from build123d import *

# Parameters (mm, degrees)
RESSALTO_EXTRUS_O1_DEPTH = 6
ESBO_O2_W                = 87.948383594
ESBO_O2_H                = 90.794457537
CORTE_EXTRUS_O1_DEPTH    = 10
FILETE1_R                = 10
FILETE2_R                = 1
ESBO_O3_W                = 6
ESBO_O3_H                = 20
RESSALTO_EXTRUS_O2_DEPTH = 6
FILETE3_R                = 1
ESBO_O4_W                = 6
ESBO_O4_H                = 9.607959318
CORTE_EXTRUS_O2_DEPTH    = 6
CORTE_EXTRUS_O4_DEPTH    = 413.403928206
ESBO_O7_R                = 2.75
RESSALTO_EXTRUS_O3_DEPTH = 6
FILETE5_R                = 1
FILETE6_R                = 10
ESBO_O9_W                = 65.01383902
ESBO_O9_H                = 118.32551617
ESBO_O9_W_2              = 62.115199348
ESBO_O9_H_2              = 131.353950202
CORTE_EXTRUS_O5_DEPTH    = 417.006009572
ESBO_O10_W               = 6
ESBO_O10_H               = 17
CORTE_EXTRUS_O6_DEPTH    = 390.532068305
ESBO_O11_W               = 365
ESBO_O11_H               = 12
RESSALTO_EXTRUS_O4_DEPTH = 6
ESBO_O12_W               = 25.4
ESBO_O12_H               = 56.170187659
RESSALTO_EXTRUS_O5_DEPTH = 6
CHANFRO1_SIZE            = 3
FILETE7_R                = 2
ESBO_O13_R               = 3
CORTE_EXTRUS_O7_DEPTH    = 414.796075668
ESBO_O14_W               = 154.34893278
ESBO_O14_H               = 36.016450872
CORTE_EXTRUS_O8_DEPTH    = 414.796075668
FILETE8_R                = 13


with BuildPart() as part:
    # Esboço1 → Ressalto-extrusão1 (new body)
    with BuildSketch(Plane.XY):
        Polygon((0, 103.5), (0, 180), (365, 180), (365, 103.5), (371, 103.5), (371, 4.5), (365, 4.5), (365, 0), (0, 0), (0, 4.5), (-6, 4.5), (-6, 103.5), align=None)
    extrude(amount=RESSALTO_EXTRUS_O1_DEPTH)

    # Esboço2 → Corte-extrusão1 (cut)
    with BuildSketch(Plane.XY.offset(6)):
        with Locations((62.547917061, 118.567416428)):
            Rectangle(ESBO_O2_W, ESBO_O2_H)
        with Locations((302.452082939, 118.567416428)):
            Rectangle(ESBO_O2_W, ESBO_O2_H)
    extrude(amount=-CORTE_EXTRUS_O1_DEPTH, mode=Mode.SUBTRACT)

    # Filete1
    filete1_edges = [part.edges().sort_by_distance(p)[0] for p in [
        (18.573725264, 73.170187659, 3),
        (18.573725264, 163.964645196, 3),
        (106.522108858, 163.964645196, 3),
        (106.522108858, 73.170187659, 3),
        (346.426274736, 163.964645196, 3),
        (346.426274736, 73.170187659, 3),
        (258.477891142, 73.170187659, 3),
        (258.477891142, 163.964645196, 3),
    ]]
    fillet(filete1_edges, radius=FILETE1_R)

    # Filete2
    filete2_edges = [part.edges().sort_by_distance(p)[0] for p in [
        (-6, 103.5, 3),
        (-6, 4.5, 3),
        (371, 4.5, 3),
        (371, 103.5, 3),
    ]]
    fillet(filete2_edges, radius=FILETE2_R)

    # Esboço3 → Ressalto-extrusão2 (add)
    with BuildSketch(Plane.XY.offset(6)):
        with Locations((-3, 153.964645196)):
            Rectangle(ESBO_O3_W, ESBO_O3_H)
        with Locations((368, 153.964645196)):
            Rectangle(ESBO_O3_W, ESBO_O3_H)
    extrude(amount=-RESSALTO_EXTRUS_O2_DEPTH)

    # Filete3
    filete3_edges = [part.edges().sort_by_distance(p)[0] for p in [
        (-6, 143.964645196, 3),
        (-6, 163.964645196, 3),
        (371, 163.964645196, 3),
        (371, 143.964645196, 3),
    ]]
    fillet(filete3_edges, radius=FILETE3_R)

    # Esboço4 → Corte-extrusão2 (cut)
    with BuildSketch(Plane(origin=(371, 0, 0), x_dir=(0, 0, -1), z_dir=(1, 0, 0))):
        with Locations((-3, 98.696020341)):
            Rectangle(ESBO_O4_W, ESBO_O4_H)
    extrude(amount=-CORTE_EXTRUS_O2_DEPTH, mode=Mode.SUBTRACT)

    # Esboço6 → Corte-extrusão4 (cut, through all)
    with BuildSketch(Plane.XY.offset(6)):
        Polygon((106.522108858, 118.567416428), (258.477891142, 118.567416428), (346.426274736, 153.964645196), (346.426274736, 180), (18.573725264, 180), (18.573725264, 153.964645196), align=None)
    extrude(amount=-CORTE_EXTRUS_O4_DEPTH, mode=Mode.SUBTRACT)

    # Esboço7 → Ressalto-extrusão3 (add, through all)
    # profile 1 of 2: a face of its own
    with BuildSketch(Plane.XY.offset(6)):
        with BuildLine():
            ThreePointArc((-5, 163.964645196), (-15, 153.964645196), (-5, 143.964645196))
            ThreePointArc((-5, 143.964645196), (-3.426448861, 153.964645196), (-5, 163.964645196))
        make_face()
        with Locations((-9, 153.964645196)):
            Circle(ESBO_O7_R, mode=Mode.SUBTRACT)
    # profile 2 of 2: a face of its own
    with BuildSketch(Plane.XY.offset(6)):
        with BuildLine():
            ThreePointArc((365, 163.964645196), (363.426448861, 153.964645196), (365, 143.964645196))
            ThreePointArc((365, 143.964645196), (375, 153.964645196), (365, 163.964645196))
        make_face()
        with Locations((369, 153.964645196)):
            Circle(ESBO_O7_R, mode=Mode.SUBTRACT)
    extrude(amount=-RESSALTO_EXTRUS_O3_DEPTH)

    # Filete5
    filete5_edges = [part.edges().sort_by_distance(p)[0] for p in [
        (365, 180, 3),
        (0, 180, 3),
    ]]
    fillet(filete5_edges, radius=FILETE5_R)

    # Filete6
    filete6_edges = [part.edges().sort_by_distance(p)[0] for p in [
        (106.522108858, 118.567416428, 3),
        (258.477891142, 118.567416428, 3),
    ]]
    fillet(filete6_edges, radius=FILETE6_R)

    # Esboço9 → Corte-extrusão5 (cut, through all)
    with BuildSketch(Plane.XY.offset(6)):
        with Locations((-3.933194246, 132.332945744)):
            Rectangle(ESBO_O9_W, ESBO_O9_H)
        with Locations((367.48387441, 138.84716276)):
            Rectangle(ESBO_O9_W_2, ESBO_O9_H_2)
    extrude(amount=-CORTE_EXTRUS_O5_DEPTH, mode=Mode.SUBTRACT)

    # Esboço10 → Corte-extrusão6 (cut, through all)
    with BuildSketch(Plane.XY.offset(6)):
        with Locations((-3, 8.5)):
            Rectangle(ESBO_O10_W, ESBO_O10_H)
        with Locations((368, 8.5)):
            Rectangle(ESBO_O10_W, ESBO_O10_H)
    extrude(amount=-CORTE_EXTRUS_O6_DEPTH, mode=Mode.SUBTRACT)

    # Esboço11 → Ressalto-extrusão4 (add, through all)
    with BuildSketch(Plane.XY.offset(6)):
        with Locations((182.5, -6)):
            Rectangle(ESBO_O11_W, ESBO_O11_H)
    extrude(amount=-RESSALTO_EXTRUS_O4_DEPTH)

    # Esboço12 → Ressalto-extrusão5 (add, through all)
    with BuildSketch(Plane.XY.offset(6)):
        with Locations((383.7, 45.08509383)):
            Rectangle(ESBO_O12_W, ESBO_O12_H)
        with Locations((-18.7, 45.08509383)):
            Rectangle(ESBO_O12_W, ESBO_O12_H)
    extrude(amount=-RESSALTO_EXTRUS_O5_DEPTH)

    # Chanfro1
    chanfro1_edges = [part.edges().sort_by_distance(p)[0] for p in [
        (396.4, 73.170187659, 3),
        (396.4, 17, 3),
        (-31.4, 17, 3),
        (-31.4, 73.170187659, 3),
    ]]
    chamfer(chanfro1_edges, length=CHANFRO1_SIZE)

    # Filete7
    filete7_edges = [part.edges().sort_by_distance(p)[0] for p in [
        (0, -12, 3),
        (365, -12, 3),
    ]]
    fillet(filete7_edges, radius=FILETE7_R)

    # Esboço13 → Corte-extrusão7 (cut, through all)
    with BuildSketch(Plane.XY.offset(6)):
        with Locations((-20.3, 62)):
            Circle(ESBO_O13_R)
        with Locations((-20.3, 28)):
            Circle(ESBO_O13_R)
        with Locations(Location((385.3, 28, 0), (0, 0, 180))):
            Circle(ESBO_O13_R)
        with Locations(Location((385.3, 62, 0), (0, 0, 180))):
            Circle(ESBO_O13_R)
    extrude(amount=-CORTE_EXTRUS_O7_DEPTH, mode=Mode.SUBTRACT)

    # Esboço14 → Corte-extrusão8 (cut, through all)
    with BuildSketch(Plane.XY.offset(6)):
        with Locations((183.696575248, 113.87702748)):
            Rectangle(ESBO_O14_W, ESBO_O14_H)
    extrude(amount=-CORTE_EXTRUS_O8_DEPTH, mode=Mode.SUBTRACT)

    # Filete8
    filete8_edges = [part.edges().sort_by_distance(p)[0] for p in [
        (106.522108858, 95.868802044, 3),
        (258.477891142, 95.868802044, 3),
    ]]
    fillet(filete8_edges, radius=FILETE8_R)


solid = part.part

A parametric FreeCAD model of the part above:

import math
import FreeCAD as App
import Part
import Sketcher


def edges_at(feature, points):
    """Names of the edges that pass closest to the given points."""
    edges = feature.Shape.Edges
    near = lambda p: min(range(len(edges)), key=lambda i: edges[i].distToShape(Part.Vertex(*p))[0])
    return sorted({f"Edge{near(p) + 1}" for p in points})

doc = App.newDocument("Part")
body = doc.addObject("PartDesign::Body", "Body")

sketch1 = body.newObject("Sketcher::SketchObject", "Sketch")
sketch1.AttachmentSupport = (doc.getObject("XY_Plane"), [""])
sketch1.MapMode = "FlatFace"
sketch1.addGeometry(Part.LineSegment(App.Vector(0, 180, 0), App.Vector(0, 103.5, 0)), False)
sketch1.addGeometry(Part.LineSegment(App.Vector(0, 103.5, 0), App.Vector(-6, 103.5, 0)), False)
sketch1.addGeometry(Part.LineSegment(App.Vector(-6, 103.5, 0), App.Vector(-6, 4.5, 0)), False)
sketch1.addGeometry(Part.LineSegment(App.Vector(-6, 4.5, 0), App.Vector(0, 4.5, 0)), False)
sketch1.addGeometry(Part.LineSegment(App.Vector(0, 4.5, 0), App.Vector(0, 0, 0)), False)
sketch1.addGeometry(Part.LineSegment(App.Vector(0, 0, 0), App.Vector(365, 0, 0)), False)
sketch1.addGeometry(Part.LineSegment(App.Vector(365, 0, 0), App.Vector(365, 4.5, 0)), False)
sketch1.addGeometry(Part.LineSegment(App.Vector(365, 4.5, 0), App.Vector(371, 4.5, 0)), False)
sketch1.addGeometry(Part.LineSegment(App.Vector(371, 4.5, 0), App.Vector(371, 103.5, 0)), False)
sketch1.addGeometry(Part.LineSegment(App.Vector(371, 103.5, 0), App.Vector(365, 103.5, 0)), False)
sketch1.addGeometry(Part.LineSegment(App.Vector(365, 103.5, 0), App.Vector(365, 180, 0)), False)
sketch1.addGeometry(Part.LineSegment(App.Vector(365, 180, 0), App.Vector(0, 180, 0)), False)
sketch1.addConstraint(Sketcher.Constraint("Coincident", 0, 2, 1, 1))
sketch1.addConstraint(Sketcher.Constraint("Coincident", 1, 2, 2, 1))
sketch1.addConstraint(Sketcher.Constraint("Coincident", 2, 2, 3, 1))
sketch1.addConstraint(Sketcher.Constraint("Coincident", 3, 2, 4, 1))
sketch1.addConstraint(Sketcher.Constraint("Coincident", 4, 2, 5, 1))
sketch1.addConstraint(Sketcher.Constraint("Coincident", 5, 2, 6, 1))
sketch1.addConstraint(Sketcher.Constraint("Coincident", 6, 2, 7, 1))
sketch1.addConstraint(Sketcher.Constraint("Coincident", 7, 2, 8, 1))
sketch1.addConstraint(Sketcher.Constraint("Coincident", 8, 2, 9, 1))
sketch1.addConstraint(Sketcher.Constraint("Coincident", 9, 2, 10, 1))
sketch1.addConstraint(Sketcher.Constraint("Coincident", 10, 2, 11, 1))
sketch1.addConstraint(Sketcher.Constraint("Coincident", 11, 2, 0, 1))
sketch1.addConstraint(Sketcher.Constraint("Vertical", 0))
sketch1.addConstraint(Sketcher.Constraint("Horizontal", 1))
sketch1.addConstraint(Sketcher.Constraint("Vertical", 2))
sketch1.addConstraint(Sketcher.Constraint("Horizontal", 3))
sketch1.addConstraint(Sketcher.Constraint("Vertical", 4))
sketch1.addConstraint(Sketcher.Constraint("Horizontal", 5))
sketch1.addConstraint(Sketcher.Constraint("Vertical", 6))
sketch1.addConstraint(Sketcher.Constraint("Horizontal", 7))
sketch1.addConstraint(Sketcher.Constraint("Vertical", 8))
sketch1.addConstraint(Sketcher.Constraint("Horizontal", 9))
sketch1.addConstraint(Sketcher.Constraint("Vertical", 10))
sketch1.addConstraint(Sketcher.Constraint("Horizontal", 11))
sketch1.addConstraint(Sketcher.Constraint("Coincident", 4, 2, -1, 1))
sketch1.addConstraint(Sketcher.Constraint("PointOnObject", 0, 2, -2))
sketch1.addConstraint(Sketcher.Constraint("Horizontal", 3, 2, 6, 2))
sketch1.addConstraint(Sketcher.Constraint("Horizontal", 1, 2, 8, 2))
sketch1.addConstraint(Sketcher.Constraint("Vertical", 6, 2, 9, 2))
sketch1.addConstraint(Sketcher.Constraint("Equal", 3, 7))
sketch1.addConstraint(Sketcher.Constraint("DistanceX", 1, 2, 1, 1, 6.0))
sketch1.addConstraint(Sketcher.Constraint("DistanceX", 5, 1, 5, 2, 365.0))
sketch1.addConstraint(Sketcher.Constraint("DistanceY", 2, 2, 2, 1, 99.0))
sketch1.addConstraint(Sketcher.Constraint("DistanceY", 0, 2, 0, 1, 76.5))
sketch1.addConstraint(Sketcher.Constraint("DistanceY", 4, 2, 4, 1, 4.5))
pad1 = body.newObject("PartDesign::Pad", "Pad")
pad1.Profile = sketch1
pad1.Length = 6

sketch2 = body.newObject("Sketcher::SketchObject", "Sketch001")
sketch2.AttachmentSupport = (doc.getObject("XY_Plane"), [""])
sketch2.MapMode = "FlatFace"
sketch2.AttachmentOffset = App.Placement(App.Vector(0, 0, 6), App.Rotation())
sketch2.addGeometry(Part.LineSegment(App.Vector(19, 164, 0), App.Vector(19, 73, 0)), False)
sketch2.addGeometry(Part.LineSegment(App.Vector(19, 73, 0), App.Vector(107, 73, 0)), False)
sketch2.addGeometry(Part.LineSegment(App.Vector(107, 73, 0), App.Vector(107, 164, 0)), False)
sketch2.addGeometry(Part.LineSegment(App.Vector(107, 164, 0), App.Vector(19, 164, 0)), False)
sketch2.addGeometry(Part.LineSegment(App.Vector(258, 164, 0), App.Vector(258, 73, 0)), False)
sketch2.addGeometry(Part.LineSegment(App.Vector(258, 73, 0), App.Vector(346, 73, 0)), False)
sketch2.addGeometry(Part.LineSegment(App.Vector(346, 73, 0), App.Vector(346, 164, 0)), False)
sketch2.addGeometry(Part.LineSegment(App.Vector(346, 164, 0), App.Vector(258, 164, 0)), False)
sketch2.addConstraint(Sketcher.Constraint("Coincident", 0, 2, 1, 1))
sketch2.addConstraint(Sketcher.Constraint("Coincident", 1, 2, 2, 1))
sketch2.addConstraint(Sketcher.Constraint("Coincident", 2, 2, 3, 1))
sketch2.addConstraint(Sketcher.Constraint("Coincident", 3, 2, 0, 1))
sketch2.addConstraint(Sketcher.Constraint("Coincident", 4, 2, 5, 1))
sketch2.addConstraint(Sketcher.Constraint("Coincident", 5, 2, 6, 1))
sketch2.addConstraint(Sketcher.Constraint("Coincident", 6, 2, 7, 1))
sketch2.addConstraint(Sketcher.Constraint("Coincident", 7, 2, 4, 1))
sketch2.addConstraint(Sketcher.Constraint("Vertical", 0))
sketch2.addConstraint(Sketcher.Constraint("Horizontal", 1))
sketch2.addConstraint(Sketcher.Constraint("Vertical", 2))
sketch2.addConstraint(Sketcher.Constraint("Horizontal", 3))
sketch2.addConstraint(Sketcher.Constraint("Vertical", 4))
sketch2.addConstraint(Sketcher.Constraint("Horizontal", 5))
sketch2.addConstraint(Sketcher.Constraint("Vertical", 6))
sketch2.addConstraint(Sketcher.Constraint("Horizontal", 7))
sketch2.addConstraint(Sketcher.Constraint("Horizontal", 1, 2, 4, 2))
sketch2.addConstraint(Sketcher.Constraint("Horizontal", 3, 2, 6, 2))
sketch2.addConstraint(Sketcher.Constraint("Equal", 3, 5))
sketch2.addConstraint(Sketcher.Constraint("DistanceX", 1, 1, 1, 2, 87.948384))
sketch2.addConstraint(Sketcher.Constraint("DistanceY", 0, 2, 0, 1, 90.794458))
sketch2.addConstraint(Sketcher.Constraint("DistanceX", -1, 1, 1, 2, 106.522109))
sketch2.addConstraint(Sketcher.Constraint("DistanceX", -1, 1, 4, 2, 258.477891))
sketch2.addConstraint(Sketcher.Constraint("DistanceY", -1, 1, 0, 2, 73.170188))
pocket1 = body.newObject("PartDesign::Pocket", "Pocket")
pocket1.Profile = sketch2
pocket1.Length = 10
doc.recompute()

fillet = body.newObject("PartDesign::Fillet", "Fillet")
fillet.Base = (pocket1, edges_at(pocket1, [
    (18.574, 73.17, 3),
    (18.574, 163.965, 3),
    (106.522, 163.965, 3),
    (106.522, 73.17, 3),
    (346.426, 163.965, 3),
    (346.426, 73.17, 3),
    (258.478, 73.17, 3),
    (258.478, 163.965, 3),
]))
fillet.Radius = 10
doc.recompute()

fillet2 = body.newObject("PartDesign::Fillet", "Fillet001")
fillet2.Base = (fillet, edges_at(fillet, [
    (-6, 103.5, 3),
    (-6, 4.5, 3),
    (371, 4.5, 3),
    (371, 103.5, 3),
]))
fillet2.Radius = 1

sketch3 = body.newObject("Sketcher::SketchObject", "Sketch002")
sketch3.AttachmentSupport = (doc.getObject("XY_Plane"), [""])
sketch3.MapMode = "FlatFace"
sketch3.AttachmentOffset = App.Placement(App.Vector(0, 0, 6), App.Rotation())
sketch3.addGeometry(Part.LineSegment(App.Vector(-6, 164, 0), App.Vector(-6, 144, 0)), False)
sketch3.addGeometry(Part.LineSegment(App.Vector(-6, 144, 0), App.Vector(0, 144, 0)), False)
sketch3.addGeometry(Part.LineSegment(App.Vector(0, 144, 0), App.Vector(0, 164, 0)), False)
sketch3.addGeometry(Part.LineSegment(App.Vector(0, 164, 0), App.Vector(-6, 164, 0)), False)
sketch3.addGeometry(Part.LineSegment(App.Vector(365, 164, 0), App.Vector(365, 144, 0)), False)
sketch3.addGeometry(Part.LineSegment(App.Vector(365, 144, 0), App.Vector(371, 144, 0)), False)
sketch3.addGeometry(Part.LineSegment(App.Vector(371, 144, 0), App.Vector(371, 164, 0)), False)
sketch3.addGeometry(Part.LineSegment(App.Vector(371, 164, 0), App.Vector(365, 164, 0)), False)
sketch3.addConstraint(Sketcher.Constraint("Coincident", 0, 2, 1, 1))
sketch3.addConstraint(Sketcher.Constraint("Coincident", 1, 2, 2, 1))
sketch3.addConstraint(Sketcher.Constraint("Coincident", 2, 2, 3, 1))
sketch3.addConstraint(Sketcher.Constraint("Coincident", 3, 2, 0, 1))
sketch3.addConstraint(Sketcher.Constraint("Coincident", 4, 2, 5, 1))
sketch3.addConstraint(Sketcher.Constraint("Coincident", 5, 2, 6, 1))
sketch3.addConstraint(Sketcher.Constraint("Coincident", 6, 2, 7, 1))
sketch3.addConstraint(Sketcher.Constraint("Coincident", 7, 2, 4, 1))
sketch3.addConstraint(Sketcher.Constraint("Vertical", 0))
sketch3.addConstraint(Sketcher.Constraint("Horizontal", 1))
sketch3.addConstraint(Sketcher.Constraint("Vertical", 2))
sketch3.addConstraint(Sketcher.Constraint("Horizontal", 3))
sketch3.addConstraint(Sketcher.Constraint("Vertical", 4))
sketch3.addConstraint(Sketcher.Constraint("Horizontal", 5))
sketch3.addConstraint(Sketcher.Constraint("Vertical", 6))
sketch3.addConstraint(Sketcher.Constraint("Horizontal", 7))
sketch3.addConstraint(Sketcher.Constraint("PointOnObject", 1, 2, -2))
sketch3.addConstraint(Sketcher.Constraint("Horizontal", 1, 2, 4, 2))
sketch3.addConstraint(Sketcher.Constraint("Horizontal", 3, 2, 6, 2))
sketch3.addConstraint(Sketcher.Constraint("Equal", 3, 5))
sketch3.addConstraint(Sketcher.Constraint("DistanceX", 1, 1, 1, 2, 6.0))
sketch3.addConstraint(Sketcher.Constraint("DistanceY", 0, 2, 0, 1, 20.0))
sketch3.addConstraint(Sketcher.Constraint("DistanceX", -1, 1, 4, 2, 365.0))
sketch3.addConstraint(Sketcher.Constraint("DistanceY", -1, 1, 0, 2, 143.964645))
pad2 = body.newObject("PartDesign::Pad", "Pad001")
pad2.Profile = sketch3
pad2.Length = 6
pad2.Reversed = True
doc.recompute()

fillet3 = body.newObject("PartDesign::Fillet", "Fillet002")
fillet3.Base = (pad2, edges_at(pad2, [
    (-6, 143.965, 3),
    (-6, 163.965, 3),
    (371, 163.965, 3),
    (371, 143.965, 3),
]))
fillet3.Radius = 1

sketch4 = body.newObject("Sketcher::SketchObject", "Sketch003")
sketch4.AttachmentSupport = (doc.getObject("YZ_Plane"), [""])
sketch4.MapMode = "FlatFace"
sketch4.AttachmentOffset = App.Placement(App.Vector(0, 0, 371), App.Rotation())
sketch4.addGeometry(Part.LineSegment(App.Vector(104, 6, 0), App.Vector(94, 6, 0)), False)
sketch4.addGeometry(Part.LineSegment(App.Vector(94, 6, 0), App.Vector(94, 0, 0)), False)
sketch4.addGeometry(Part.LineSegment(App.Vector(94, 0, 0), App.Vector(104, 0, 0)), False)
sketch4.addGeometry(Part.LineSegment(App.Vector(104, 0, 0), App.Vector(104, 6, 0)), False)
sketch4.addConstraint(Sketcher.Constraint("Coincident", 0, 2, 1, 1))
sketch4.addConstraint(Sketcher.Constraint("Coincident", 1, 2, 2, 1))
sketch4.addConstraint(Sketcher.Constraint("Coincident", 2, 2, 3, 1))
sketch4.addConstraint(Sketcher.Constraint("Coincident", 3, 2, 0, 1))
sketch4.addConstraint(Sketcher.Constraint("Horizontal", 0))
sketch4.addConstraint(Sketcher.Constraint("Vertical", 1))
sketch4.addConstraint(Sketcher.Constraint("Horizontal", 2))
sketch4.addConstraint(Sketcher.Constraint("Vertical", 3))
sketch4.addConstraint(Sketcher.Constraint("PointOnObject", 1, 2, -1))
sketch4.addConstraint(Sketcher.Constraint("DistanceY", 1, 2, 1, 1, 6.0))
sketch4.addConstraint(Sketcher.Constraint("DistanceX", -1, 1, 2, 2, 103.5))
sketch4.addConstraint(Sketcher.Constraint("DistanceX", 0, 2, 0, 1, 9.607959))
pocket2 = body.newObject("PartDesign::Pocket", "Pocket001")
pocket2.Profile = sketch4
pocket2.Length = 6

sketch5 = body.newObject("Sketcher::SketchObject", "Sketch004")
sketch5.AttachmentSupport = (doc.getObject("XY_Plane"), [""])
sketch5.MapMode = "FlatFace"
sketch5.AttachmentOffset = App.Placement(App.Vector(0, 0, 6), App.Rotation())
sketch5.addGeometry(Part.LineSegment(App.Vector(107, 119, 0), App.Vector(258, 119, 0)), False)
sketch5.addGeometry(Part.LineSegment(App.Vector(258, 119, 0), App.Vector(346, 154, 0)), False)
sketch5.addGeometry(Part.LineSegment(App.Vector(346, 154, 0), App.Vector(346, 180, 0)), False)
sketch5.addGeometry(Part.LineSegment(App.Vector(346, 180, 0), App.Vector(19, 180, 0)), False)
sketch5.addGeometry(Part.LineSegment(App.Vector(19, 180, 0), App.Vector(19, 154, 0)), False)
sketch5.addGeometry(Part.LineSegment(App.Vector(19, 154, 0), App.Vector(107, 119, 0)), False)
sketch5.addConstraint(Sketcher.Constraint("Coincident", 0, 2, 1, 1))
sketch5.addConstraint(Sketcher.Constraint("Coincident", 1, 2, 2, 1))
sketch5.addConstraint(Sketcher.Constraint("Coincident", 2, 2, 3, 1))
sketch5.addConstraint(Sketcher.Constraint("Coincident", 3, 2, 4, 1))
sketch5.addConstraint(Sketcher.Constraint("Coincident", 4, 2, 5, 1))
sketch5.addConstraint(Sketcher.Constraint("Coincident", 5, 2, 0, 1))
sketch5.addConstraint(Sketcher.Constraint("Horizontal", 0))
sketch5.addConstraint(Sketcher.Constraint("Vertical", 2))
sketch5.addConstraint(Sketcher.Constraint("Horizontal", 3))
sketch5.addConstraint(Sketcher.Constraint("Vertical", 4))
sketch5.addConstraint(Sketcher.Constraint("Horizontal", 1, 2, 4, 2))
sketch5.addConstraint(Sketcher.Constraint("Equal", 1, 5))
sketch5.addConstraint(Sketcher.Constraint("DistanceY", -1, 1, 2, 2, 180.0))
sketch5.addConstraint(Sketcher.Constraint("DistanceX", 3, 2, 3, 1, 327.852549))
sketch5.addConstraint(Sketcher.Constraint("Distance", 1, 94.804441))
sketch5.addConstraint(Sketcher.Constraint("DistanceX", 0, 1, 0, 2, 151.955782))
sketch5.addConstraint(Sketcher.Constraint("DistanceY", 2, 1, 2, 2, 26.035355))
sketch5.addConstraint(Sketcher.Constraint("DistanceX", -1, 1, 0, 2, 258.477891))
pocket3 = body.newObject("PartDesign::Pocket", "Pocket002")
pocket3.Profile = sketch5
pocket3.Type = "ThroughAll"

sketch6 = body.newObject("Sketcher::SketchObject", "Sketch005")
sketch6.AttachmentSupport = (doc.getObject("XY_Plane"), [""])
sketch6.MapMode = "FlatFace"
sketch6.AttachmentOffset = App.Placement(App.Vector(0, 0, 6), App.Rotation())
sketch6.addGeometry(Part.ArcOfCircle(Part.Circle(App.Vector(-5, 154, 0), App.Vector(0, 0, 1), 10), math.radians(90), math.radians(270)), False)
sketch6.addGeometry(Part.ArcOfCircle(Part.Circle(App.Vector(-36, 154, 0), App.Vector(0, 0, 1), 32.6), math.radians(-18), math.radians(18)), False)
sketch6.addGeometry(Part.Circle(App.Vector(-9, 154, 0), App.Vector(0, 0, 1), 2.8), False)
sketch6.addGeometry(Part.ArcOfCircle(Part.Circle(App.Vector(396, 154, 0), App.Vector(0, 0, 1), 32.6), math.radians(162), math.radians(198)), False)
sketch6.addGeometry(Part.ArcOfCircle(Part.Circle(App.Vector(365, 154, 0), App.Vector(0, 0, 1), 10), math.radians(-90), math.radians(90)), False)
sketch6.addGeometry(Part.Circle(App.Vector(369, 154, 0), App.Vector(0, 0, 1), 2.8), False)
sketch6.addConstraint(Sketcher.Constraint("Coincident", 0, 1, 1, 2))
sketch6.addConstraint(Sketcher.Constraint("Coincident", 1, 1, 0, 2))
sketch6.addConstraint(Sketcher.Constraint("Coincident", 3, 1, 4, 2))
sketch6.addConstraint(Sketcher.Constraint("Coincident", 4, 1, 3, 2))
sketch6.addConstraint(Sketcher.Constraint("Equal", 1, 3))
sketch6.addConstraint(Sketcher.Constraint("Equal", 0, 4))
sketch6.addConstraint(Sketcher.Constraint("Equal", 2, 5))
sketch6.addConstraint(Sketcher.Constraint("Horizontal", 0, 3, 1, 3))
sketch6.addConstraint(Sketcher.Constraint("Horizontal", 1, 3, 2, 3))
sketch6.addConstraint(Sketcher.Constraint("Horizontal", 2, 3, 3, 3))
sketch6.addConstraint(Sketcher.Constraint("Horizontal", 3, 3, 4, 3))
sketch6.addConstraint(Sketcher.Constraint("Horizontal", 4, 3, 5, 3))
sketch6.addConstraint(Sketcher.Constraint("Vertical", 4, 3, 3, 1))
sketch6.addConstraint(Sketcher.Constraint("Radius", 0, 10.0))
sketch6.addConstraint(Sketcher.Constraint("Diameter", 2, 5.5))
sketch6.addConstraint(Sketcher.Constraint("DistanceX", 0, 3, -1, 1, 5.0))
sketch6.addConstraint(Sketcher.Constraint("DistanceX", 2, 3, -1, 1, 9.0))
sketch6.addConstraint(Sketcher.Constraint("DistanceX", -1, 1, 4, 3, 365.0))
sketch6.addConstraint(Sketcher.Constraint("DistanceX", -1, 1, 5, 3, 369.0))
sketch6.addConstraint(Sketcher.Constraint("DistanceX", 0, 1, -1, 1, 5.0))
sketch6.addConstraint(Sketcher.Constraint("Radius", 1, 32.562038))
sketch6.addConstraint(Sketcher.Constraint("DistanceY", -1, 1, 0, 3, 153.964645))
pad3 = body.newObject("PartDesign::Pad", "Pad002")
pad3.Profile = sketch6
pad3.Length = 6
pad3.Reversed = True
doc.recompute()

fillet4 = body.newObject("PartDesign::Fillet", "Fillet003")
fillet4.Base = (pad3, edges_at(pad3, [(365, 180, 3), (0, 180, 3)]))
fillet4.Radius = 1
doc.recompute()

fillet5 = body.newObject("PartDesign::Fillet", "Fillet004")
fillet5.Base = (fillet4, edges_at(fillet4, [(106.522, 118.567, 3), (258.478, 118.567, 3)]))
fillet5.Radius = 10

sketch7 = body.newObject("Sketcher::SketchObject", "Sketch006")
sketch7.AttachmentSupport = (doc.getObject("XY_Plane"), [""])
sketch7.MapMode = "FlatFace"
sketch7.AttachmentOffset = App.Placement(App.Vector(0, 0, 6), App.Rotation())
sketch7.addGeometry(Part.LineSegment(App.Vector(-36, 191, 0), App.Vector(-36, 73, 0)), False)
sketch7.addGeometry(Part.LineSegment(App.Vector(-36, 73, 0), App.Vector(29, 73, 0)), False)
sketch7.addGeometry(Part.LineSegment(App.Vector(29, 73, 0), App.Vector(29, 191, 0)), False)
sketch7.addGeometry(Part.LineSegment(App.Vector(29, 191, 0), App.Vector(-36, 191, 0)), False)
sketch7.addGeometry(Part.LineSegment(App.Vector(336, 205, 0), App.Vector(336, 73, 0)), False)
sketch7.addGeometry(Part.LineSegment(App.Vector(336, 73, 0), App.Vector(399, 73, 0)), False)
sketch7.addGeometry(Part.LineSegment(App.Vector(399, 73, 0), App.Vector(399, 205, 0)), False)
sketch7.addGeometry(Part.LineSegment(App.Vector(399, 205, 0), App.Vector(336, 205, 0)), False)
sketch7.addConstraint(Sketcher.Constraint("Coincident", 0, 2, 1, 1))
sketch7.addConstraint(Sketcher.Constraint("Coincident", 1, 2, 2, 1))
sketch7.addConstraint(Sketcher.Constraint("Coincident", 2, 2, 3, 1))
sketch7.addConstraint(Sketcher.Constraint("Coincident", 3, 2, 0, 1))
sketch7.addConstraint(Sketcher.Constraint("Coincident", 4, 2, 5, 1))
sketch7.addConstraint(Sketcher.Constraint("Coincident", 5, 2, 6, 1))
sketch7.addConstraint(Sketcher.Constraint("Coincident", 6, 2, 7, 1))
sketch7.addConstraint(Sketcher.Constraint("Coincident", 7, 2, 4, 1))
sketch7.addConstraint(Sketcher.Constraint("Vertical", 0))
sketch7.addConstraint(Sketcher.Constraint("Horizontal", 1))
sketch7.addConstraint(Sketcher.Constraint("Vertical", 2))
sketch7.addConstraint(Sketcher.Constraint("Horizontal", 3))
sketch7.addConstraint(Sketcher.Constraint("Vertical", 4))
sketch7.addConstraint(Sketcher.Constraint("Horizontal", 5))
sketch7.addConstraint(Sketcher.Constraint("Vertical", 6))
sketch7.addConstraint(Sketcher.Constraint("Horizontal", 7))
sketch7.addConstraint(Sketcher.Constraint("Horizontal", 1, 2, 4, 2))
sketch7.addConstraint(Sketcher.Constraint("DistanceX", 5, 1, 5, 2, 62.115199))
sketch7.addConstraint(Sketcher.Constraint("DistanceX", 1, 1, 1, 2, 65.013839))
sketch7.addConstraint(Sketcher.Constraint("DistanceY", 4, 2, 4, 1, 131.35395))
sketch7.addConstraint(Sketcher.Constraint("DistanceY", 0, 2, 0, 1, 118.325516))
sketch7.addConstraint(Sketcher.Constraint("DistanceX", 1, 2, 4, 2, 307.852549))
sketch7.addConstraint(Sketcher.Constraint("DistanceX", 0, 2, -1, 1, 36.440114))
sketch7.addConstraint(Sketcher.Constraint("DistanceY", -1, 1, 0, 2, 73.170188))
pocket4 = body.newObject("PartDesign::Pocket", "Pocket003")
pocket4.Profile = sketch7
pocket4.Type = "ThroughAll"

sketch8 = body.newObject("Sketcher::SketchObject", "Sketch007")
sketch8.AttachmentSupport = (doc.getObject("XY_Plane"), [""])
sketch8.MapMode = "FlatFace"
sketch8.AttachmentOffset = App.Placement(App.Vector(0, 0, 6), App.Rotation())
sketch8.addGeometry(Part.LineSegment(App.Vector(-6, 17, 0), App.Vector(-6, 0, 0)), False)
sketch8.addGeometry(Part.LineSegment(App.Vector(-6, 0, 0), App.Vector(0, 0, 0)), False)
sketch8.addGeometry(Part.LineSegment(App.Vector(0, 0, 0), App.Vector(0, 17, 0)), False)
sketch8.addGeometry(Part.LineSegment(App.Vector(0, 17, 0), App.Vector(-6, 17, 0)), False)
sketch8.addGeometry(Part.LineSegment(App.Vector(365, 17, 0), App.Vector(365, 0, 0)), False)
sketch8.addGeometry(Part.LineSegment(App.Vector(365, 0, 0), App.Vector(371, 0, 0)), False)
sketch8.addGeometry(Part.LineSegment(App.Vector(371, 0, 0), App.Vector(371, 17, 0)), False)
sketch8.addGeometry(Part.LineSegment(App.Vector(371, 17, 0), App.Vector(365, 17, 0)), False)
sketch8.addConstraint(Sketcher.Constraint("Coincident", 0, 2, 1, 1))
sketch8.addConstraint(Sketcher.Constraint("Coincident", 1, 2, 2, 1))
sketch8.addConstraint(Sketcher.Constraint("Coincident", 2, 2, 3, 1))
sketch8.addConstraint(Sketcher.Constraint("Coincident", 3, 2, 0, 1))
sketch8.addConstraint(Sketcher.Constraint("Coincident", 4, 2, 5, 1))
sketch8.addConstraint(Sketcher.Constraint("Coincident", 5, 2, 6, 1))
sketch8.addConstraint(Sketcher.Constraint("Coincident", 6, 2, 7, 1))
sketch8.addConstraint(Sketcher.Constraint("Coincident", 7, 2, 4, 1))
sketch8.addConstraint(Sketcher.Constraint("Vertical", 0))
sketch8.addConstraint(Sketcher.Constraint("Horizontal", 1))
sketch8.addConstraint(Sketcher.Constraint("Vertical", 2))
sketch8.addConstraint(Sketcher.Constraint("Horizontal", 3))
sketch8.addConstraint(Sketcher.Constraint("Vertical", 4))
sketch8.addConstraint(Sketcher.Constraint("Horizontal", 5))
sketch8.addConstraint(Sketcher.Constraint("Vertical", 6))
sketch8.addConstraint(Sketcher.Constraint("Horizontal", 7))
sketch8.addConstraint(Sketcher.Constraint("Coincident", 1, 2, -1, 1))
sketch8.addConstraint(Sketcher.Constraint("PointOnObject", 4, 2, -1))
sketch8.addConstraint(Sketcher.Constraint("Horizontal", 3, 2, 6, 2))
sketch8.addConstraint(Sketcher.Constraint("Equal", 3, 5))
sketch8.addConstraint(Sketcher.Constraint("DistanceX", 1, 1, 1, 2, 6.0))
sketch8.addConstraint(Sketcher.Constraint("DistanceY", 0, 2, 0, 1, 17.0))
sketch8.addConstraint(Sketcher.Constraint("DistanceX", -1, 1, 4, 2, 365.0))
pocket5 = body.newObject("PartDesign::Pocket", "Pocket004")
pocket5.Profile = sketch8
pocket5.Type = "ThroughAll"

sketch9 = body.newObject("Sketcher::SketchObject", "Sketch008")
sketch9.AttachmentSupport = (doc.getObject("XY_Plane"), [""])
sketch9.MapMode = "FlatFace"
sketch9.AttachmentOffset = App.Placement(App.Vector(0, 0, 6), App.Rotation())
sketch9.addGeometry(Part.LineSegment(App.Vector(0, 0, 0), App.Vector(0, -12, 0)), False)
sketch9.addGeometry(Part.LineSegment(App.Vector(0, -12, 0), App.Vector(365, -12, 0)), False)
sketch9.addGeometry(Part.LineSegment(App.Vector(365, -12, 0), App.Vector(365, 0, 0)), False)
sketch9.addGeometry(Part.LineSegment(App.Vector(365, 0, 0), App.Vector(0, 0, 0)), False)
sketch9.addConstraint(Sketcher.Constraint("Coincident", 0, 2, 1, 1))
sketch9.addConstraint(Sketcher.Constraint("Coincident", 1, 2, 2, 1))
sketch9.addConstraint(Sketcher.Constraint("Coincident", 2, 2, 3, 1))
sketch9.addConstraint(Sketcher.Constraint("Coincident", 3, 2, 0, 1))
sketch9.addConstraint(Sketcher.Constraint("Vertical", 0))
sketch9.addConstraint(Sketcher.Constraint("Horizontal", 1))
sketch9.addConstraint(Sketcher.Constraint("Vertical", 2))
sketch9.addConstraint(Sketcher.Constraint("Horizontal", 3))
sketch9.addConstraint(Sketcher.Constraint("Coincident", 3, 2, -1, 1))
sketch9.addConstraint(Sketcher.Constraint("DistanceX", 1, 1, 1, 2, 365.0))
sketch9.addConstraint(Sketcher.Constraint("DistanceY", 0, 2, 0, 1, 12.0))
pad4 = body.newObject("PartDesign::Pad", "Pad003")
pad4.Profile = sketch9
pad4.Length = 6
pad4.Reversed = True

sketch10 = body.newObject("Sketcher::SketchObject", "Sketch009")
sketch10.AttachmentSupport = (doc.getObject("XY_Plane"), [""])
sketch10.MapMode = "FlatFace"
sketch10.AttachmentOffset = App.Placement(App.Vector(0, 0, 6), App.Rotation())
sketch10.addGeometry(Part.LineSegment(App.Vector(371, 73, 0), App.Vector(371, 17, 0)), False)
sketch10.addGeometry(Part.LineSegment(App.Vector(371, 17, 0), App.Vector(396, 17, 0)), False)
sketch10.addGeometry(Part.LineSegment(App.Vector(396, 17, 0), App.Vector(396, 73, 0)), False)
sketch10.addGeometry(Part.LineSegment(App.Vector(396, 73, 0), App.Vector(371, 73, 0)), False)
sketch10.addGeometry(Part.LineSegment(App.Vector(-31, 73, 0), App.Vector(-31, 17, 0)), False)
sketch10.addGeometry(Part.LineSegment(App.Vector(-31, 17, 0), App.Vector(-6, 17, 0)), False)
sketch10.addGeometry(Part.LineSegment(App.Vector(-6, 17, 0), App.Vector(-6, 73, 0)), False)
sketch10.addGeometry(Part.LineSegment(App.Vector(-6, 73, 0), App.Vector(-31, 73, 0)), False)
sketch10.addConstraint(Sketcher.Constraint("Coincident", 0, 2, 1, 1))
sketch10.addConstraint(Sketcher.Constraint("Coincident", 1, 2, 2, 1))
sketch10.addConstraint(Sketcher.Constraint("Coincident", 2, 2, 3, 1))
sketch10.addConstraint(Sketcher.Constraint("Coincident", 3, 2, 0, 1))
sketch10.addConstraint(Sketcher.Constraint("Coincident", 4, 2, 5, 1))
sketch10.addConstraint(Sketcher.Constraint("Coincident", 5, 2, 6, 1))
sketch10.addConstraint(Sketcher.Constraint("Coincident", 6, 2, 7, 1))
sketch10.addConstraint(Sketcher.Constraint("Coincident", 7, 2, 4, 1))
sketch10.addConstraint(Sketcher.Constraint("Vertical", 0))
sketch10.addConstraint(Sketcher.Constraint("Horizontal", 1))
sketch10.addConstraint(Sketcher.Constraint("Vertical", 2))
sketch10.addConstraint(Sketcher.Constraint("Horizontal", 3))
sketch10.addConstraint(Sketcher.Constraint("Vertical", 4))
sketch10.addConstraint(Sketcher.Constraint("Horizontal", 5))
sketch10.addConstraint(Sketcher.Constraint("Vertical", 6))
sketch10.addConstraint(Sketcher.Constraint("Horizontal", 7))
sketch10.addConstraint(Sketcher.Constraint("Horizontal", 1, 2, 4, 2))
sketch10.addConstraint(Sketcher.Constraint("Horizontal", 3, 2, 6, 2))
sketch10.addConstraint(Sketcher.Constraint("Equal", 3, 5))
sketch10.addConstraint(Sketcher.Constraint("DistanceX", 1, 1, 1, 2, 25.4))
sketch10.addConstraint(Sketcher.Constraint("DistanceX", -1, 1, 0, 2, 371.0))
sketch10.addConstraint(Sketcher.Constraint("DistanceY", -1, 1, 0, 2, 17.0))
sketch10.addConstraint(Sketcher.Constraint("DistanceX", 5, 2, -1, 1, 6.0))
sketch10.addConstraint(Sketcher.Constraint("DistanceY", 0, 2, 0, 1, 56.170188))
pad5 = body.newObject("PartDesign::Pad", "Pad004")
pad5.Profile = sketch10
pad5.Type = "UpToLast"
pad5.Reversed = True
doc.recompute()

chamfer = body.newObject("PartDesign::Chamfer", "Chamfer")
chamfer.Base = (pad5, edges_at(pad5, [
    (396.4, 73.17, 3),
    (396.4, 17, 3),
    (-31.4, 17, 3),
    (-31.4, 73.17, 3),
]))
chamfer.Size = 3
doc.recompute()

fillet6 = body.newObject("PartDesign::Fillet", "Fillet005")
fillet6.Base = (chamfer, edges_at(chamfer, [(0, -12, 3), (365, -12, 3)]))
fillet6.Radius = 2

sketch11 = body.newObject("Sketcher::SketchObject", "Sketch010")
sketch11.AttachmentSupport = (doc.getObject("XY_Plane"), [""])
sketch11.MapMode = "FlatFace"
sketch11.AttachmentOffset = App.Placement(App.Vector(0, 0, 6), App.Rotation())
sketch11.addGeometry(Part.Circle(App.Vector(-20.3, 62, 0), App.Vector(0, 0, 1), 3), False)
sketch11.addGeometry(Part.Circle(App.Vector(-20.3, 28, 0), App.Vector(0, 0, 1), 3), False)
sketch11.addGeometry(Part.Circle(App.Vector(385.3, 28, 0), App.Vector(0, 0, 1), 3), False)
sketch11.addGeometry(Part.Circle(App.Vector(385.3, 62, 0), App.Vector(0, 0, 1), 3), False)
sketch11.addConstraint(Sketcher.Constraint("Equal", 0, 1))
sketch11.addConstraint(Sketcher.Constraint("Equal", 1, 2))
sketch11.addConstraint(Sketcher.Constraint("Equal", 2, 3))
sketch11.addConstraint(Sketcher.Constraint("Horizontal", 1, 3, 2, 3))
sketch11.addConstraint(Sketcher.Constraint("Horizontal", 0, 3, 3, 3))
sketch11.addConstraint(Sketcher.Constraint("Vertical", 0, 3, 1, 3))
sketch11.addConstraint(Sketcher.Constraint("Vertical", 2, 3, 3, 3))
sketch11.addConstraint(Sketcher.Constraint("Diameter", 0, 6.0))
sketch11.addConstraint(Sketcher.Constraint("DistanceY", -1, 1, 0, 3, 62.0))
sketch11.addConstraint(Sketcher.Constraint("DistanceY", -1, 1, 1, 3, 28.0))
sketch11.addConstraint(Sketcher.Constraint("DistanceX", 0, 3, -1, 1, 20.3))
sketch11.addConstraint(Sketcher.Constraint("DistanceX", -1, 1, 2, 3, 385.3))
pocket6 = body.newObject("PartDesign::Pocket", "Pocket005")
pocket6.Profile = sketch11
pocket6.Type = "ThroughAll"

sketch12 = body.newObject("Sketcher::SketchObject", "Sketch011")
sketch12.AttachmentSupport = (doc.getObject("XY_Plane"), [""])
sketch12.MapMode = "FlatFace"
sketch12.AttachmentOffset = App.Placement(App.Vector(0, 0, 6), App.Rotation())
sketch12.addGeometry(Part.LineSegment(App.Vector(107, 132, 0), App.Vector(107, 96, 0)), False)
sketch12.addGeometry(Part.LineSegment(App.Vector(107, 96, 0), App.Vector(261, 96, 0)), False)
sketch12.addGeometry(Part.LineSegment(App.Vector(261, 96, 0), App.Vector(261, 132, 0)), False)
sketch12.addGeometry(Part.LineSegment(App.Vector(261, 132, 0), App.Vector(107, 132, 0)), False)
sketch12.addConstraint(Sketcher.Constraint("Coincident", 0, 2, 1, 1))
sketch12.addConstraint(Sketcher.Constraint("Coincident", 1, 2, 2, 1))
sketch12.addConstraint(Sketcher.Constraint("Coincident", 2, 2, 3, 1))
sketch12.addConstraint(Sketcher.Constraint("Coincident", 3, 2, 0, 1))
sketch12.addConstraint(Sketcher.Constraint("Vertical", 0))
sketch12.addConstraint(Sketcher.Constraint("Horizontal", 1))
sketch12.addConstraint(Sketcher.Constraint("Vertical", 2))
sketch12.addConstraint(Sketcher.Constraint("Horizontal", 3))
sketch12.addConstraint(Sketcher.Constraint("DistanceY", 0, 2, 0, 1, 36.016451))
sketch12.addConstraint(Sketcher.Constraint("DistanceX", 1, 1, 1, 2, 154.348933))
sketch12.addConstraint(Sketcher.Constraint("DistanceX", -1, 1, 0, 2, 106.522109))
sketch12.addConstraint(Sketcher.Constraint("DistanceY", -1, 1, 0, 2, 95.868802))
pocket7 = body.newObject("PartDesign::Pocket", "Pocket006")
pocket7.Profile = sketch12
pocket7.Type = "ThroughAll"
doc.recompute()

fillet7 = body.newObject("PartDesign::Fillet", "Fillet006")
fillet7.Base = (pocket7, edges_at(pocket7, [(106.522, 95.869, 3), (258.478, 95.869, 3)]))
fillet7.Radius = 13

doc.recompute()
